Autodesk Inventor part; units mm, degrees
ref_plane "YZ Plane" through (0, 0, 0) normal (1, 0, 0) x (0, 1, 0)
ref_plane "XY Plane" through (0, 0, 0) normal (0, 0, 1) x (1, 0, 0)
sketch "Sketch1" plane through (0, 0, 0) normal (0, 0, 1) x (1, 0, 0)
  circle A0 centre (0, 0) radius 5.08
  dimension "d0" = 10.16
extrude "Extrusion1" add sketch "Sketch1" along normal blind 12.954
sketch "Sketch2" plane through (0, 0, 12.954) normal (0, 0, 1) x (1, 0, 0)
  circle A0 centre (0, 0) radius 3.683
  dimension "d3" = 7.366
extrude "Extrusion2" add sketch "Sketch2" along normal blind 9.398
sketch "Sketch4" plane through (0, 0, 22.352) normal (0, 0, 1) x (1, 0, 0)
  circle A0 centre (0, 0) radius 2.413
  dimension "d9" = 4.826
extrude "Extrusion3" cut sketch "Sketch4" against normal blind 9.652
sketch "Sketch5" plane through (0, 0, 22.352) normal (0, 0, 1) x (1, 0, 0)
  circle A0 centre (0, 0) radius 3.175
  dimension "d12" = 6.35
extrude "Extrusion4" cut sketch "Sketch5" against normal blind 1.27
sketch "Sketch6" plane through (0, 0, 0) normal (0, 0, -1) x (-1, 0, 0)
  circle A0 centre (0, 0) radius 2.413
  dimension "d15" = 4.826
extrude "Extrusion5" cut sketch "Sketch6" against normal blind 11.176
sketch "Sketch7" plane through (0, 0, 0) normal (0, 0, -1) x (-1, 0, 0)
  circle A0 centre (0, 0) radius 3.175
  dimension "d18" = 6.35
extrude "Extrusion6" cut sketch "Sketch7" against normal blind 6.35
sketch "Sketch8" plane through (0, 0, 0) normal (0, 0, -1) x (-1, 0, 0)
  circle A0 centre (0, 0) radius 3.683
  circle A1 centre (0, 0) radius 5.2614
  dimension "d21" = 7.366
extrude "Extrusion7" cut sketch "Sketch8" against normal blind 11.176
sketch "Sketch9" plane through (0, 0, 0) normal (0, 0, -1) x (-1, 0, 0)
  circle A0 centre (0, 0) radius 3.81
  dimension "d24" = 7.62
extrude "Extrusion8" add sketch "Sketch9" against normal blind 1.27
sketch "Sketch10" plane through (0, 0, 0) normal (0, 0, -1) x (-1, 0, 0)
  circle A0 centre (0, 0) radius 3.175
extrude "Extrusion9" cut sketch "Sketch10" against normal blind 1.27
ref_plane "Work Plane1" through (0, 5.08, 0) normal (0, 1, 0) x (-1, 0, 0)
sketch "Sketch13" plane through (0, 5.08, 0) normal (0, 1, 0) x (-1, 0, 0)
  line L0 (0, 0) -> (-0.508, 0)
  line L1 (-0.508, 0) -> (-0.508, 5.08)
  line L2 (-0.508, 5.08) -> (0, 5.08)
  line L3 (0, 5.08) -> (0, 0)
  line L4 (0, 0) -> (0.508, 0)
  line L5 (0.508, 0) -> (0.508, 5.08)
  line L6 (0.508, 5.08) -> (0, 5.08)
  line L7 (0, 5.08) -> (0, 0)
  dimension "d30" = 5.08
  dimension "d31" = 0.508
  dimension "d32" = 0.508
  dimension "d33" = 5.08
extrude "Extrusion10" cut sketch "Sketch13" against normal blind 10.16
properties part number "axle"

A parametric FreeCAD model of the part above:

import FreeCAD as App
import Part
import Sketcher
Q = App.Units.Quantity

doc = App.newDocument("Part")
params = doc.addObject("Spreadsheet::Sheet", "Params")
for row, (alias, value) in enumerate([
    ("sketch1_diameter", "0.4 in"),
    ("pad1_length", "0.51 in"),
    ("sketch2_diameter", "0.29 in"),
    ("pad2_length", "0.37 in"),
    ("sketch3_diameter", "0.19 in"),
    ("pocket1_length", "0.38 in"),
    ("sketch4_diameter", "0.25 in"),
    ("pocket2_length", "0.05 in"),
    ("sketch5_diameter", "0.19 in"),
    ("pocket3_length", "0.44 in"),
    ("sketch6_diameter", "0.25 in"),
    ("pocket4_length", "0.25 in"),
    ("sketch7_diameter", "0.29 in"),
    ("pocket5_length", "0.44 in"),
    ("sketch8_diameter", "0.3 in"),
    ("pad3_length", "0.05 in"),
    ("sketch9_diameter", "0.25 in"),
    ("pocket6_length", "0.05 in"),
    ("sketch10_height", "0.2 in"),
    ("pocket7_length", "0.4 in"),
], start=1):
    params.set(f"A{row}", alias)
    params.set(f"B{row}", "=" + value)
    params.setAlias(f"B{row}", alias)

body = doc.addObject("PartDesign::Body", "Body")

# Sketch on XY plane
sketch1 = doc.addObject("Sketcher::SketchObject", "Sketch")
body.addObject(sketch1)
sketch1.AttachmentSupport = (doc.XY_Plane, [""])
sketch1.MapMode = "FlatFace"
sketch1.addGeometry(Part.Circle(App.Vector(0, 0, 0), App.Vector(0, 0, 1), 5.08), False)
sketch1.addConstraint([
    Sketcher.Constraint("Coincident", 0, 3, -1, 1),
    Sketcher.Constraint("Diameter", 0, Q("0.4 in")),
])
sketch1.setExpression("Constraints[1]", "Params.sketch1_diameter")
pad1 = doc.addObject("PartDesign::Pad", "Pad")
body.addObject(pad1)
pad1.Profile = sketch1
pad1.setExpression("Length", "Params.pad1_length")

# Sketch on XY plane
sketch2 = doc.addObject("Sketcher::SketchObject", "Sketch001")
body.addObject(sketch2)
sketch2.AttachmentSupport = (doc.XY_Plane, [""])
sketch2.MapMode = "FlatFace"
sketch2.AttachmentOffset = App.Placement(App.Vector(0, 0, 0.51 * 25.4), App.Rotation())
sketch2.addGeometry(Part.Circle(App.Vector(0, 0, 0), App.Vector(0, 0, 1), 3.683), False)
sketch2.addConstraint([
    Sketcher.Constraint("Coincident", 0, 3, -1, 1),
    Sketcher.Constraint("Diameter", 0, Q("0.29 in")),
])
sketch2.setExpression("Constraints[1]", "Params.sketch2_diameter")
pad2 = doc.addObject("PartDesign::Pad", "Pad001")
body.addObject(pad2)
pad2.Profile = sketch2
pad2.setExpression("Length", "Params.pad2_length")

# Sketch on XY plane
sketch3 = doc.addObject("Sketcher::SketchObject", "Sketch002")
body.addObject(sketch3)
sketch3.AttachmentSupport = (doc.XY_Plane, [""])
sketch3.MapMode = "FlatFace"
sketch3.AttachmentOffset = App.Placement(App.Vector(0, 0, 0.88 * 25.4), App.Rotation())
sketch3.addGeometry(Part.Circle(App.Vector(0, 0, 0), App.Vector(0, 0, 1), 2.413), False)
sketch3.addConstraint([
    Sketcher.Constraint("Coincident", 0, 3, -1, 1),
    Sketcher.Constraint("Diameter", 0, Q("0.19 in")),
])
sketch3.setExpression("Constraints[1]", "Params.sketch3_diameter")
pocket1 = doc.addObject("PartDesign::Pocket", "Pocket")
body.addObject(pocket1)
pocket1.Profile = sketch3
pocket1.setExpression("Length", "Params.pocket1_length")

# Sketch on XY plane
sketch4 = doc.addObject("Sketcher::SketchObject", "Sketch003")
body.addObject(sketch4)
sketch4.AttachmentSupport = (doc.XY_Plane, [""])
sketch4.MapMode = "FlatFace"
sketch4.AttachmentOffset = App.Placement(App.Vector(0, 0, 0.88 * 25.4), App.Rotation())
sketch4.addGeometry(Part.Circle(App.Vector(0, 0, 0), App.Vector(0, 0, 1), 3.175), False)
sketch4.addConstraint([
    Sketcher.Constraint("Coincident", 0, 3, -1, 1),
    Sketcher.Constraint("Diameter", 0, Q("0.25 in")),
])
sketch4.setExpression("Constraints[1]", "Params.sketch4_diameter")
pocket2 = doc.addObject("PartDesign::Pocket", "Pocket001")
body.addObject(pocket2)
pocket2.Profile = sketch4
pocket2.setExpression("Length", "Params.pocket2_length")

# Sketch on XY plane
sketch5 = doc.addObject("Sketcher::SketchObject", "Sketch004")
body.addObject(sketch5)
sketch5.AttachmentSupport = (doc.XY_Plane, [""])
sketch5.MapMode = "FlatFace"
sketch5.addGeometry(Part.Circle(App.Vector(0, 0, 0), App.Vector(0, 0, 1), 2.413), False)
sketch5.addConstraint([
    Sketcher.Constraint("Coincident", 0, 3, -1, 1),
    Sketcher.Constraint("Diameter", 0, Q("0.19 in")),
])
sketch5.setExpression("Constraints[1]", "Params.sketch5_diameter")
pocket3 = doc.addObject("PartDesign::Pocket", "Pocket002")
body.addObject(pocket3)
pocket3.Profile = sketch5
pocket3.setExpression("Length", "Params.pocket3_length")
pocket3.Reversed = True

# Sketch on XY plane
sketch6 = doc.addObject("Sketcher::SketchObject", "Sketch005")
body.addObject(sketch6)
sketch6.AttachmentSupport = (doc.XY_Plane, [""])
sketch6.MapMode = "FlatFace"
sketch6.addGeometry(Part.Circle(App.Vector(0, 0, 0), App.Vector(0, 0, 1), 3.175), False)
sketch6.addConstraint([
    Sketcher.Constraint("Coincident", 0, 3, -1, 1),
    Sketcher.Constraint("Diameter", 0, Q("0.25 in")),
])
sketch6.setExpression("Constraints[1]", "Params.sketch6_diameter")
pocket4 = doc.addObject("PartDesign::Pocket", "Pocket003")
body.addObject(pocket4)
pocket4.Profile = sketch6
pocket4.setExpression("Length", "Params.pocket4_length")
pocket4.Reversed = True

# Sketch on XY plane
sketch7 = doc.addObject("Sketcher::SketchObject", "Sketch006")
body.addObject(sketch7)
sketch7.AttachmentSupport = (doc.XY_Plane, [""])
sketch7.MapMode = "FlatFace"
sketch7.addGeometry([
    Part.Circle(App.Vector(0, 0, 0), App.Vector(0, 0, 1), 5.2614),
    Part.Circle(App.Vector(0, 0, 0), App.Vector(0, 0, 1), 3.683),
], False)
sketch7.addConstraint([
    Sketcher.Constraint("Coincident", 0, 3, -1, 1),
    Sketcher.Constraint("Coincident", 1, 3, -1, 1),
    Sketcher.Constraint("Diameter", 1, Q("0.29 in")),
    Sketcher.Constraint("Diameter", 0, 10.5228),
])
sketch7.setExpression("Constraints[2]", "Params.sketch7_diameter")
pocket5 = doc.addObject("PartDesign::Pocket", "Pocket004")
body.addObject(pocket5)
pocket5.Profile = sketch7
pocket5.setExpression("Length", "Params.pocket5_length")
pocket5.Reversed = True

# Sketch on XY plane
sketch8 = doc.addObject("Sketcher::SketchObject", "Sketch007")
body.addObject(sketch8)
sketch8.AttachmentSupport = (doc.XY_Plane, [""])
sketch8.MapMode = "FlatFace"
sketch8.addGeometry(Part.Circle(App.Vector(0, 0, 0), App.Vector(0, 0, 1), 3.81), False)
sketch8.addConstraint([
    Sketcher.Constraint("Coincident", 0, 3, -1, 1),
    Sketcher.Constraint("Diameter", 0, Q("0.3 in")),
])
sketch8.setExpression("Constraints[1]", "Params.sketch8_diameter")
pad3 = doc.addObject("PartDesign::Pad", "Pad002")
body.addObject(pad3)
pad3.Profile = sketch8
pad3.setExpression("Length", "Params.pad3_length")

# Sketch on XY plane
sketch9 = doc.addObject("Sketcher::SketchObject", "Sketch008")
body.addObject(sketch9)
sketch9.AttachmentSupport = (doc.XY_Plane, [""])
sketch9.MapMode = "FlatFace"
sketch9.addGeometry(Part.Circle(App.Vector(0, 0, 0), App.Vector(0, 0, 1), 3.175), False)
sketch9.addConstraint([
    Sketcher.Constraint("Coincident", 0, 3, -1, 1),
    Sketcher.Constraint("Diameter", 0, Q("0.25 in")),
])
sketch9.setExpression("Constraints[1]", "Params.sketch9_diameter")
pocket6 = doc.addObject("PartDesign::Pocket", "Pocket005")
body.addObject(pocket6)
pocket6.Profile = sketch9
pocket6.setExpression("Length", "Params.pocket6_length")
pocket6.Reversed = True

# Sketch on XZ plane
sketch10 = doc.addObject("Sketcher::SketchObject", "Sketch009")
body.addObject(sketch10)
sketch10.AttachmentSupport = (doc.XZ_Plane, [""])
sketch10.MapMode = "FlatFace"
sketch10.AttachmentOffset = App.Placement(App.Vector(0, 0, -0.2 * 25.4), App.Rotation())
sketch10.addGeometry([
    Part.LineSegment(App.Vector(0.508, 0, 0), App.Vector(-0.508, 0, 0)),
    Part.LineSegment(App.Vector(-0.508, 0, 0), App.Vector(-0.508, 5.08, 0)),
    Part.LineSegment(App.Vector(-0.508, 5.08, 0), App.Vector(0.508, 5.08, 0)),
    Part.LineSegment(App.Vector(0.508, 5.08, 0), App.Vector(0.508, 0, 0)),
], False)
sketch10.addConstraint([
    Sketcher.Constraint("Coincident", 0, 2, 1, 1),
    Sketcher.Constraint("Coincident", 1, 2, 2, 1),
    Sketcher.Constraint("Coincident", 2, 2, 3, 1),
    Sketcher.Constraint("Coincident", 3, 2, 0, 1),
    Sketcher.Constraint("Horizontal", 0),
    Sketcher.Constraint("Vertical", 1),
    Sketcher.Constraint("Horizontal", 2),
    Sketcher.Constraint("Vertical", 3),
    Sketcher.Constraint("Symmetric", 0, 2, 3, 2, -1, 1),
    Sketcher.Constraint("DistanceY", 1, 1, 1, 2, Q("0.2 in")),
    Sketcher.Constraint("DistanceX", 0, 2, -1, 1, Q("0.02 in")),
])
sketch10.setExpression("Constraints[9]", "Params.sketch10_height")
pocket7 = doc.addObject("PartDesign::Pocket", "Pocket006")
body.addObject(pocket7)
pocket7.Profile = sketch10
pocket7.setExpression("Length", "Params.pocket7_length")
pocket7.Reversed = True

doc.recompute()
